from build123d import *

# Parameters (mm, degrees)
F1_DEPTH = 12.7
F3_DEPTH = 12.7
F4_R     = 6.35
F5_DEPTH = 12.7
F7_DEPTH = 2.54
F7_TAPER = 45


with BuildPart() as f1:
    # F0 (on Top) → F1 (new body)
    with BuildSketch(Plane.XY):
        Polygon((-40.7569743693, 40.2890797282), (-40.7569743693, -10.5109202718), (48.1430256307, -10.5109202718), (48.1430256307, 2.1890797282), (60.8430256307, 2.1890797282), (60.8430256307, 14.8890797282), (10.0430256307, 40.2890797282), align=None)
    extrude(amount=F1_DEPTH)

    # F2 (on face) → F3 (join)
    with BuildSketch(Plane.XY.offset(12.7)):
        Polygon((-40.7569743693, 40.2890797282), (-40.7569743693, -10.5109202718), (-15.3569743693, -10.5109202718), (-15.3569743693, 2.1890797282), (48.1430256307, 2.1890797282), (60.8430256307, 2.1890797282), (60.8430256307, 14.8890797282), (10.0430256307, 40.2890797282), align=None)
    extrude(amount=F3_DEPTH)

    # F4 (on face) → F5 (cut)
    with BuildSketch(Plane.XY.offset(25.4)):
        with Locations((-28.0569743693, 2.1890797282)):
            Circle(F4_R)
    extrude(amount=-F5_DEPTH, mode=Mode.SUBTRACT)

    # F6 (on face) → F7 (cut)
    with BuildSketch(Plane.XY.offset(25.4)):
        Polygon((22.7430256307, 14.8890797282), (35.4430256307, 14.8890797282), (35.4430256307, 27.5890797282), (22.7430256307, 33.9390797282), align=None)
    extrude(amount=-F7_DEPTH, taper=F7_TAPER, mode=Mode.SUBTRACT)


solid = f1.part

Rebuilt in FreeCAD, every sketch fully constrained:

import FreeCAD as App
import Part
import Sketcher
Q = App.Units.Quantity


def add_polygon(sketch, points):
    """Adds a closed chain of lines whose ends are joined by coincident constraints."""
    first, n = sketch.GeometryCount, len(points)
    for a, b in zip(points, points[1:] + points[:1]):
        sketch.addGeometry(Part.LineSegment(App.Vector(*a, 0), App.Vector(*b, 0)), False)
    for i in range(n):
        sketch.addConstraint(Sketcher.Constraint("Coincident", first + i, 2, first + (i + 1) % n, 1))

doc = App.newDocument("Part")
params = doc.addObject("Spreadsheet::Sheet", "Params")
for row, (alias, value) in enumerate([
    ("sketch1_width", "2 in"),
    ("sketch1_width2", "3.5 in"),
    ("sketch1_width3", "0.5 in"),
    ("pad1_length", "0.5 in"),
    ("sketch2_width", "1 in"),
    ("sketch2_width2", "3 in"),
    ("sketch2_width3", "2 in"),
    ("sketch2_height", "0.5 in"),
    ("pad2_length", "0.5 in"),
    ("sketch3_diameter", "0.5 in"),
    ("pocket1_length", "0.5 in"),
    ("sketch4_width", "0.5 in"),
    ("sketch4_height", "0.75 in"),
    ("pocket2_length", "0.1 in"),
    ("pocket2_taper", "-45 deg"),
], start=1):
    params.set(f"A{row}", alias)
    params.set(f"B{row}", "=" + value)
    params.setAlias(f"B{row}", alias)

body = doc.addObject("PartDesign::Body", "Body")

# Sketch on XY plane
sketch1 = body.newObject("Sketcher::SketchObject", "Sketch")
sketch1.AttachmentSupport = (doc.getObject("XY_Plane"), [""])
sketch1.MapMode = "FlatFace"
add_polygon(sketch1, [(-41, 40), (-41, -11), (48, -11), (48, 2), (61, 2), (61, 15), (10, 40)])  # lines 0-6
sketch1.addConstraint([
    Sketcher.Constraint("Vertical", 0),
    Sketcher.Constraint("Horizontal", 1),
    Sketcher.Constraint("Vertical", 2),
    Sketcher.Constraint("Horizontal", 3),
    Sketcher.Constraint("Vertical", 4),
    Sketcher.Constraint("Horizontal", 6),
    Sketcher.Constraint("Equal", 6, 0),
    Sketcher.Constraint("Equal", 3, 2),
    Sketcher.Constraint("Equal", 2, 4),
    Sketcher.Constraint("DistanceX", 6, 2, 6, 1, Q("2 in")),
    Sketcher.Constraint("DistanceX", 1, 1, 1, 2, Q("3.5 in")),
    Sketcher.Constraint("DistanceX", 3, 1, 3, 2, Q("0.5 in")),
    Sketcher.Constraint("DistanceY", 0, 2, -1, 1, 10.51092),
    Sketcher.Constraint("DistanceX", 0, 2, -1, 1, 40.756974),
])
sketch1.setExpression("Constraints[16]", "Params.sketch1_width")
sketch1.setExpression("Constraints[17]", "Params.sketch1_width2")
sketch1.setExpression("Constraints[18]", "Params.sketch1_width3")
pad1 = body.newObject("PartDesign::Pad", "Pad")
pad1.Profile = sketch1
pad1.setExpression("Length", "Params.pad1_length")

# Sketch on XY plane
sketch2 = body.newObject("Sketcher::SketchObject", "Sketch001")
sketch2.AttachmentSupport = (doc.getObject("XY_Plane"), [""])
sketch2.MapMode = "FlatFace"
sketch2.AttachmentOffset = App.Placement(App.Vector(0, 0, 0.5 * 25.4), App.Rotation())
add_polygon(sketch2, [(-41, 40), (-41, -11), (-15, -11), (-15, 2), (61, 2), (61, 15), (10, 40)])  # lines 0-6
sketch2.addConstraint([
    Sketcher.Constraint("Vertical", 0),
    Sketcher.Constraint("Horizontal", 1),
    Sketcher.Constraint("Vertical", 2),
    Sketcher.Constraint("Horizontal", 3),
    Sketcher.Constraint("Vertical", 4),
    Sketcher.Constraint("Horizontal", 6),
    Sketcher.Constraint("Equal", 6, 0),
    Sketcher.Constraint("Equal", 2, 4),
    Sketcher.Constraint("DistanceX", 1, 1, 1, 2, Q("1 in")),
    Sketcher.Constraint("DistanceX", 3, 1, 3, 2, Q("3 in")),
    Sketcher.Constraint("DistanceX", 6, 2, 6, 1, Q("2 in")),
    Sketcher.Constraint("DistanceY", 2, 1, 2, 2, Q("0.5 in")),
    Sketcher.Constraint("DistanceY", 0, 2, -1, 1, 10.51092),
    Sketcher.Constraint("DistanceX", 0, 2, -1, 1, 40.756974),
])
sketch2.setExpression("Constraints[15]", "Params.sketch2_width")
sketch2.setExpression("Constraints[16]", "Params.sketch2_width2")
sketch2.setExpression("Constraints[17]", "Params.sketch2_width3")
sketch2.setExpression("Constraints[18]", "Params.sketch2_height")
pad2 = body.newObject("PartDesign::Pad", "Pad001")
pad2.Profile = sketch2
pad2.setExpression("Length", "Params.pad2_length")

# Sketch on XY plane
sketch3 = body.newObject("Sketcher::SketchObject", "Sketch002")
sketch3.AttachmentSupport = (doc.getObject("XY_Plane"), [""])
sketch3.MapMode = "FlatFace"
sketch3.AttachmentOffset = App.Placement(App.Vector(0, 0, 1 * 25.4), App.Rotation())
sketch3.addGeometry(Part.Circle(App.Vector(-28, 2, 0), App.Vector(0, 0, 1), 6), False)
sketch3.addConstraint([
    Sketcher.Constraint("Diameter", 0, Q("0.5 in")),
    Sketcher.Constraint("DistanceY", -1, 1, 0, 3, 2.18908),
    Sketcher.Constraint("DistanceX", 0, 3, -1, 1, 28.056974),
])
sketch3.setExpression("Constraints[0]", "Params.sketch3_diameter")
pocket1 = body.newObject("PartDesign::Pocket", "Pocket")
pocket1.Profile = sketch3
pocket1.setExpression("Length", "Params.pocket1_length")

# Sketch on XY plane
sketch4 = body.newObject("Sketcher::SketchObject", "Sketch003")
sketch4.AttachmentSupport = (doc.getObject("XY_Plane"), [""])
sketch4.MapMode = "FlatFace"
sketch4.AttachmentOffset = App.Placement(App.Vector(0, 0, 1 * 25.4), App.Rotation())
add_polygon(sketch4, [(23, 15), (35, 15), (35, 28), (23, 34)])  # lines 0-3
sketch4.addConstraint([
    Sketcher.Constraint("Horizontal", 0),
    Sketcher.Constraint("Vertical", 1),
    Sketcher.Constraint("Vertical", 3),
    Sketcher.Constraint("Equal", 0, 1),
    Sketcher.Constraint("DistanceX", 0, 1, 0, 2, Q("0.5 in")),
    Sketcher.Constraint("DistanceY", 3, 2, 3, 1, Q("0.75 in")),
    Sketcher.Constraint("DistanceY", -1, 1, 0, 2, 14.88908),
    Sketcher.Constraint("DistanceX", -1, 1, 0, 2, 35.443026),
])
sketch4.setExpression("Constraints[8]", "Params.sketch4_width")
sketch4.setExpression("Constraints[9]", "Params.sketch4_height")
pocket2 = body.newObject("PartDesign::Pocket", "Pocket001")
pocket2.Profile = sketch4
pocket2.setExpression("Length", "Params.pocket2_length")
pocket2.setExpression("TaperAngle", "Params.pocket2_taper")

doc.recompute()
